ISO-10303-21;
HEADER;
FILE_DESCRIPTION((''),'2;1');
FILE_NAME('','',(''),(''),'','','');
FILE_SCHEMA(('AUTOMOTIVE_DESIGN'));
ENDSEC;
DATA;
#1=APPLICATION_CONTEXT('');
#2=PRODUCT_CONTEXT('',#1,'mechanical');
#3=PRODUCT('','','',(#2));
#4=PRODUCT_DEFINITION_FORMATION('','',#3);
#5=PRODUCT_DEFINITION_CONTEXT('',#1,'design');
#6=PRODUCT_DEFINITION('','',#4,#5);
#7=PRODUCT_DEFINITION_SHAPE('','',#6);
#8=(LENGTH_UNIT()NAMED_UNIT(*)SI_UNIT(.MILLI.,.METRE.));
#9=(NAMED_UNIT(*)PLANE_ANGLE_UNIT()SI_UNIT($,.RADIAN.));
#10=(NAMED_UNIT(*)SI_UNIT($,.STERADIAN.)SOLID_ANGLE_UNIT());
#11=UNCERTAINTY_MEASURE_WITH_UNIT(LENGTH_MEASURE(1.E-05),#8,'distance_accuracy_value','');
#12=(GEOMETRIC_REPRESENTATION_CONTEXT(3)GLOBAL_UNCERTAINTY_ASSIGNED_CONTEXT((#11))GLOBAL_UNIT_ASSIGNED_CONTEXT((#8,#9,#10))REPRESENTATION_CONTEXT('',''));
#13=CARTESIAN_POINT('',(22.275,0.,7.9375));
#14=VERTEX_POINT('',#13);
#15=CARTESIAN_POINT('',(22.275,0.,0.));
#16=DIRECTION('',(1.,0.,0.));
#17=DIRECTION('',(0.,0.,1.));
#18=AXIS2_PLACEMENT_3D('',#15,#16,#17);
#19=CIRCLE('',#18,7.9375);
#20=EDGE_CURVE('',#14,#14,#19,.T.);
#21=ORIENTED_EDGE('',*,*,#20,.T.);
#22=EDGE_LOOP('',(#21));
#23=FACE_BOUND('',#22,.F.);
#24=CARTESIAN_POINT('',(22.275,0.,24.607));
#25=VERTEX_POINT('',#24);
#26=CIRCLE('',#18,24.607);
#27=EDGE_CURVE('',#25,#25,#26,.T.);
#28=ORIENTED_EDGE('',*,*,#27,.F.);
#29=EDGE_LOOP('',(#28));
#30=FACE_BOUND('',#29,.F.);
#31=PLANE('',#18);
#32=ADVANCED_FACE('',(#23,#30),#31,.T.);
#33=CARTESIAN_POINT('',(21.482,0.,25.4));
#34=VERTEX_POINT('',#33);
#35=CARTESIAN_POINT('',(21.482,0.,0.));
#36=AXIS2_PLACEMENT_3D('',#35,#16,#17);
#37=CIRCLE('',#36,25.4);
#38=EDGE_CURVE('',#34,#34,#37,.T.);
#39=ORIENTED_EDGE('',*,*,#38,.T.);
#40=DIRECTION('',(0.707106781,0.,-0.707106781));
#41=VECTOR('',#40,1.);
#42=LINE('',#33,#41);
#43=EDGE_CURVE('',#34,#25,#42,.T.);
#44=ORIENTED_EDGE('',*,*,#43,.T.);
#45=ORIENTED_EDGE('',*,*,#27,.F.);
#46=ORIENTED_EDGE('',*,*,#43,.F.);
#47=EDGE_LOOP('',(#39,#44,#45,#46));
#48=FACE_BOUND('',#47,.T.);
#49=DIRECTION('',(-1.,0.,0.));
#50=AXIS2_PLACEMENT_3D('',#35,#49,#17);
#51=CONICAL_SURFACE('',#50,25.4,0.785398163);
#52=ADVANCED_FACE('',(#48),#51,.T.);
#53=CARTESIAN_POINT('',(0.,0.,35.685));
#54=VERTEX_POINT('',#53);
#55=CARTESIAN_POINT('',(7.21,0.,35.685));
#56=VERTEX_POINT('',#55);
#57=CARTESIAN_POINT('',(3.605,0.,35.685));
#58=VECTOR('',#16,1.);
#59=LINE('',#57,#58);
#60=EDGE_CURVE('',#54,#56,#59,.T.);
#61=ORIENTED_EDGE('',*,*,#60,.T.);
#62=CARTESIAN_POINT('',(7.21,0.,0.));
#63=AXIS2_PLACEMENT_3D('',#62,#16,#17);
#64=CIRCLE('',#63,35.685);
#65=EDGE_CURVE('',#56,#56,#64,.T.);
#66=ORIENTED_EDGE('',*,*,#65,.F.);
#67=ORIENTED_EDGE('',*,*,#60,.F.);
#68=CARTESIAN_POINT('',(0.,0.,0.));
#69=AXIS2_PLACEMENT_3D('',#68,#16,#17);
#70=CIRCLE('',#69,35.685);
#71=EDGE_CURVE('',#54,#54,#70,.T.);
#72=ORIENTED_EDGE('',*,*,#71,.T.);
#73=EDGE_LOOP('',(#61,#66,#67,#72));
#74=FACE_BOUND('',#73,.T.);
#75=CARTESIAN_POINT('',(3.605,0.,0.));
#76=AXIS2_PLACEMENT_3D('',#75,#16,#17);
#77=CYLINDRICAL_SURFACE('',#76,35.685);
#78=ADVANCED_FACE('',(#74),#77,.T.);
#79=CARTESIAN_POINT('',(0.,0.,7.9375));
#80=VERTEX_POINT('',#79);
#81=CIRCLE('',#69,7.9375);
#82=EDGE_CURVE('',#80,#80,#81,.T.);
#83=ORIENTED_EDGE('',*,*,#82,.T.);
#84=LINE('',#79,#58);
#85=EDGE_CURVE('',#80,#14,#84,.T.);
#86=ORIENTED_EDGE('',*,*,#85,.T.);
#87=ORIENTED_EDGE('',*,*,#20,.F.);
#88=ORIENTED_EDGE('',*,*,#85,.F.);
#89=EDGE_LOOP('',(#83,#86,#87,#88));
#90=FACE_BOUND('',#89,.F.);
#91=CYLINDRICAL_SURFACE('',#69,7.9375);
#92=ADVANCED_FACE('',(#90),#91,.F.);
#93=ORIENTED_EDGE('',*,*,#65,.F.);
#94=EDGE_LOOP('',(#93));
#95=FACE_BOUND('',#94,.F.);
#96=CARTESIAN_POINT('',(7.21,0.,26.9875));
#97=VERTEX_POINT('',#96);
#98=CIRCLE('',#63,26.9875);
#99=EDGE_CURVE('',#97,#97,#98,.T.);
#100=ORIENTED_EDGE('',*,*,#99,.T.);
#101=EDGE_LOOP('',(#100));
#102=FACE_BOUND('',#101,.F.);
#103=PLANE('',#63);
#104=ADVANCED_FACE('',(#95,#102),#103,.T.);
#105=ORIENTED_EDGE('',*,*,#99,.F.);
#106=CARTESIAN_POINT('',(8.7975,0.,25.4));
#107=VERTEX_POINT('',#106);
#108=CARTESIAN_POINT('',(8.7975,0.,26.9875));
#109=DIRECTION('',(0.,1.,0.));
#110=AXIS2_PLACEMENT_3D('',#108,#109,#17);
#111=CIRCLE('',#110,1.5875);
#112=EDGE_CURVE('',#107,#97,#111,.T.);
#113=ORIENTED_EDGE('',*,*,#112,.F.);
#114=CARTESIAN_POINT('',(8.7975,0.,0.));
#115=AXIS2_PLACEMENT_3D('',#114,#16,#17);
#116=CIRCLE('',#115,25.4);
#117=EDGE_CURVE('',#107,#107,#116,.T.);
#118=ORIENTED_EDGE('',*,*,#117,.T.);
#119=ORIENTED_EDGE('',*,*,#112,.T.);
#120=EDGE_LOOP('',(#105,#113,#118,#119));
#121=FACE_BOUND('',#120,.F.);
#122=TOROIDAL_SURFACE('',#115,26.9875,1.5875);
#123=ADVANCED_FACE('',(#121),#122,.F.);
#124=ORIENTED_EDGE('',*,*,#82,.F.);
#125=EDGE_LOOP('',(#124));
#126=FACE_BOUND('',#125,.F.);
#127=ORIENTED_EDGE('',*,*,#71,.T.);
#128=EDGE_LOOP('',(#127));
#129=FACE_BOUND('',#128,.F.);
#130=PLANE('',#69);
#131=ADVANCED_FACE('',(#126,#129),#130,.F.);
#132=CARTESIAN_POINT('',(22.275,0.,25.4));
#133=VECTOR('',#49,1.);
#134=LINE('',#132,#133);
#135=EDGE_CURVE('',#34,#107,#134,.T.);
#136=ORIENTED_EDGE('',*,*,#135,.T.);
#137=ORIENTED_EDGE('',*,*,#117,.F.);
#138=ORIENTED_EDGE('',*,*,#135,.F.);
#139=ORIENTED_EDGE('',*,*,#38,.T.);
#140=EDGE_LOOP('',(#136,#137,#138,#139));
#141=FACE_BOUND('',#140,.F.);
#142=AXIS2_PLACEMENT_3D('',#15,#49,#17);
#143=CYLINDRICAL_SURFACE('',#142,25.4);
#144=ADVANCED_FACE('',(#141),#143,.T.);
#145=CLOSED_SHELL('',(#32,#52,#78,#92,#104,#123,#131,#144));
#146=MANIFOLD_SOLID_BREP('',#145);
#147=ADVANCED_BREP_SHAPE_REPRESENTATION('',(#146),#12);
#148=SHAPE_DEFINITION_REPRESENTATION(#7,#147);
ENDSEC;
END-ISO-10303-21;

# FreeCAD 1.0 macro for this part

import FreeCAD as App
import Part
import Sketcher
Q = App.Units.Quantity


def edges_at(feature, points):
    """Names of the edges that pass closest to the given points."""
    edges = feature.Shape.Edges
    near = lambda p: min(range(len(edges)), key=lambda i: edges[i].distToShape(Part.Vertex(*p))[0])
    return sorted({f"Edge{near(p) + 1}" for p in points})

doc = App.newDocument("Part")
body = doc.addObject("PartDesign::Body", "Body")

# Sketch on XZ plane
sketch1 = body.newObject("Sketcher::SketchObject", "Sketch")
sketch1.AttachmentSupport = (doc.getObject("XZ_Plane"), [""])
sketch1.MapMode = "FlatFace"
sketch1.addGeometry([
    Part.LineSegment(App.Vector(22.275, 7.9375, 0), App.Vector(22.275, 25.4, 0)),  # 0
    Part.LineSegment(App.Vector(22.275, 25.4, 0), App.Vector(7.21, 25.4, 0)),  # 1
    Part.LineSegment(App.Vector(7.21, 25.4, 0), App.Vector(7.21, 35.685, 0)),  # 2
    Part.LineSegment(App.Vector(7.21, 35.685, 0), App.Vector(0, 35.685, 0)),  # 3
    Part.LineSegment(App.Vector(0, 35.685, 0), App.Vector(0, 7.9375, 0)),  # 4
    Part.LineSegment(App.Vector(0, 7.9375, 0), App.Vector(22.275, 7.9375, 0)),  # 5
], False)
sketch1.addConstraint([
    Sketcher.Constraint("Coincident", 0, 2, 1, 1),
    Sketcher.Constraint("Coincident", 1, 2, 2, 1),
    Sketcher.Constraint("Coincident", 2, 2, 3, 1),
    Sketcher.Constraint("Coincident", 3, 2, 4, 1),
    Sketcher.Constraint("Coincident", 4, 2, 5, 1),
    Sketcher.Constraint("Coincident", 5, 2, 0, 1),
    Sketcher.Constraint("Vertical", 0),
    Sketcher.Constraint("Horizontal", 1),
    Sketcher.Constraint("Vertical", 2),
    Sketcher.Constraint("Horizontal", 3),
    Sketcher.Constraint("Vertical", 4),
    Sketcher.Constraint("Horizontal", 5),
    Sketcher.Constraint("PointOnObject", 3, 2, -2),
    Sketcher.Constraint("DistanceY", -1, 1, 0, 2, Q("1 in")),
    Sketcher.Constraint("DistanceY", 0, 1, 0, 2, Q("0.6875 in")),
    Sketcher.Constraint("DistanceX", 1, 2, 1, 1, 15.065),
    Sketcher.Constraint("DistanceX", 3, 2, 3, 1, 7.21),
    Sketcher.Constraint("DistanceY", 2, 1, 2, 2, 10.285),
])
revolution = body.newObject("PartDesign::Revolution", "Revolution")
revolution.Profile = sketch1
revolution.ReferenceAxis = (sketch1, ["H_Axis"])
revolution.Angle = 360
doc.recompute()

fillet = body.newObject("PartDesign::Fillet", "Fillet")
fillet.Base = (revolution, edges_at(revolution, [(7.21, 0, -25.4)]))
fillet.Radius = Q("0.0625 in")
doc.recompute()

chamfer = body.newObject("PartDesign::Chamfer", "Chamfer")
chamfer.Base = (fillet, edges_at(fillet, [(22.275, 0, -25.4)]))
chamfer.Size = 0.793

doc.recompute()
